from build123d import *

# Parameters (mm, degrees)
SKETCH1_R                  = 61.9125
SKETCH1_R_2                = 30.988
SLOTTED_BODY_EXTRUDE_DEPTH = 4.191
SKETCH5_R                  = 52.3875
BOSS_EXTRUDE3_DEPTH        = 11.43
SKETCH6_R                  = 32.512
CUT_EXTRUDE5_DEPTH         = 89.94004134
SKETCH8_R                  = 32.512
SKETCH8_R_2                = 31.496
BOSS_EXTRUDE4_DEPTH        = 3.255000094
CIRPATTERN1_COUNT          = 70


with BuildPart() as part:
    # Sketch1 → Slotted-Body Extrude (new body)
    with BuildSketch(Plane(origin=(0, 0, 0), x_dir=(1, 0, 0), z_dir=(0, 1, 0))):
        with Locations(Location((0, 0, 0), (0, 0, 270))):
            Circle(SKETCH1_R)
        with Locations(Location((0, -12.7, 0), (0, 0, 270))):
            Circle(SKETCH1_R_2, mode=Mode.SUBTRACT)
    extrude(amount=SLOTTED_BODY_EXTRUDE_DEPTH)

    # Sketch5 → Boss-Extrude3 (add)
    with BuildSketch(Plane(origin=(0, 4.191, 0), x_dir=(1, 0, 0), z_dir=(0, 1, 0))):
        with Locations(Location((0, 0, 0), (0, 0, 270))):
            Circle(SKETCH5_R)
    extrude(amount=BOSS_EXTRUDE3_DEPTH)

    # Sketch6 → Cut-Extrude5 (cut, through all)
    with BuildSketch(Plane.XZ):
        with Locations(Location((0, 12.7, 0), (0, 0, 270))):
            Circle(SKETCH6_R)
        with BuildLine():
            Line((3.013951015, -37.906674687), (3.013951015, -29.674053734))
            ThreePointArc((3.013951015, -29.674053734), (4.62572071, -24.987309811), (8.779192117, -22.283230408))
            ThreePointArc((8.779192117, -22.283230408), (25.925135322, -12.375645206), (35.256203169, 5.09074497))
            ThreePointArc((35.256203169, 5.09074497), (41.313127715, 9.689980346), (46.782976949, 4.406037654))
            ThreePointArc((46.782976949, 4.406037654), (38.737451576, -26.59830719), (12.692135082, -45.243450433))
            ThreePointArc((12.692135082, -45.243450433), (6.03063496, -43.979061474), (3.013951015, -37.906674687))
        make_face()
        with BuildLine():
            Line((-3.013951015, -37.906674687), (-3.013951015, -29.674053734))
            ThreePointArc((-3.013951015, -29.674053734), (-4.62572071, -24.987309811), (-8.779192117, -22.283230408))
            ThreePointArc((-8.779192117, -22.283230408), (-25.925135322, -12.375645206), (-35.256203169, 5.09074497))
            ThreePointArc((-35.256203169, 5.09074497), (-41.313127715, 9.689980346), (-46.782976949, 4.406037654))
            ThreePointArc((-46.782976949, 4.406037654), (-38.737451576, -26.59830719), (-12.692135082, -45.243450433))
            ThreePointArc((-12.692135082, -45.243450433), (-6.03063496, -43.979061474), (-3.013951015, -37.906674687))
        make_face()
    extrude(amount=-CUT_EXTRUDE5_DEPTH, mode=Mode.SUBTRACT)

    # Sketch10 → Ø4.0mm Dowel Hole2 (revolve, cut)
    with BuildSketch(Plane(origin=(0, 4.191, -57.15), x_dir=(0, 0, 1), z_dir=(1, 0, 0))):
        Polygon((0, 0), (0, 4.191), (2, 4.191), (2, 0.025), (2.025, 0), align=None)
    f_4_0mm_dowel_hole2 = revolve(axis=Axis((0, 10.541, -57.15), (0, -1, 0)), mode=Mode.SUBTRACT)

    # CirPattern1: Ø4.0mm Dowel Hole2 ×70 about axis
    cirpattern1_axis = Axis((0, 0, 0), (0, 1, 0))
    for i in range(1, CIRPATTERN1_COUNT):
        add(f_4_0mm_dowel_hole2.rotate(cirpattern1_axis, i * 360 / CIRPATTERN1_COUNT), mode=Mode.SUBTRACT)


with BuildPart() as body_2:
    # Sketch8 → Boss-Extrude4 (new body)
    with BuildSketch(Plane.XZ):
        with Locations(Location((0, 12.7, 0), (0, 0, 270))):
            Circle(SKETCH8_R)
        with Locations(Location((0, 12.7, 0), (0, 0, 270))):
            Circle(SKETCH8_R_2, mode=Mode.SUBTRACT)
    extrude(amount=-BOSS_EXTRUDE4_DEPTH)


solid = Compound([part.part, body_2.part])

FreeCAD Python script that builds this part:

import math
import FreeCAD as App
import Part
import Sketcher
Q = App.Units.Quantity


def add_polygon(sketch, points):
    """Adds a closed chain of lines whose ends are joined by coincident constraints."""
    first, n = sketch.GeometryCount, len(points)
    for a, b in zip(points, points[1:] + points[:1]):
        sketch.addGeometry(Part.LineSegment(App.Vector(*a, 0), App.Vector(*b, 0)), False)
    for i in range(n):
        sketch.addConstraint(Sketcher.Constraint("Coincident", first + i, 2, first + (i + 1) % n, 1))

doc = App.newDocument("Part")
body = doc.addObject("PartDesign::Body", "Body")

sketch1 = body.newObject("Sketcher::SketchObject", "Sketch")
sketch1.AttachmentSupport = (doc.getObject("XZ_Plane"), [""])
sketch1.MapMode = "FlatFace"
sketch1.addGeometry([
    Part.Circle(App.Vector(0, 0, 0), App.Vector(0, 0, 1), 62),
    Part.Circle(App.Vector(0, 13, 0), App.Vector(0, 0, 1), 31),
], False)
sketch1.addConstraint([
    Sketcher.Constraint("Coincident", 0, 3, -1, 1),
    Sketcher.Constraint("PointOnObject", 1, 3, -2),
    Sketcher.Constraint("Diameter", 1, Q("2.44 in")),
    Sketcher.Constraint("Diameter", 0, Q("4.875 in")),
    Sketcher.Constraint("DistanceY", -1, 1, 1, 3, Q("0.5 in")),
])
pad1 = body.newObject("PartDesign::Pad", "Pad")
pad1.Profile = sketch1
pad1.Length = Q("0.165 in")
pad1.Reversed = True

sketch2 = body.newObject("Sketcher::SketchObject", "Sketch001")
sketch2.AttachmentSupport = (doc.getObject("XZ_Plane"), [""])
sketch2.MapMode = "FlatFace"
sketch2.AttachmentOffset = App.Placement(App.Vector(0, 0, -0.165 * 25.4), App.Rotation())
sketch2.addGeometry(Part.Circle(App.Vector(0, 0, 0), App.Vector(0, 0, 1), 52), False)
sketch2.addConstraint([
    Sketcher.Constraint("Coincident", 0, 3, -1, 1),
    Sketcher.Constraint("Diameter", 0, Q("4.125 in")),
])
pad2 = body.newObject("PartDesign::Pad", "Pad001")
pad2.Profile = sketch2
pad2.Length = Q("0.45 in")
pad2.Reversed = True

sketch3 = body.newObject("Sketcher::SketchObject", "Sketch002")
sketch3.AttachmentSupport = (doc.getObject("XZ_Plane"), [""])
sketch3.MapMode = "FlatFace"
sketch3.addGeometry([
    Part.Circle(App.Vector(0, 13, 0), App.Vector(0, 0, 1), 33),
    Part.LineSegment(App.Vector(3, -30, 0), App.Vector(3, -38, 0)),
    Part.ArcOfCircle(Part.Circle(App.Vector(11, -38, 0), App.Vector(0, 0, 1), 8), math.radians(-180), math.radians(-74)),
    Part.ArcOfCircle(Part.Circle(App.Vector(0, 0, 0), App.Vector(0, 0, 1), 47), math.radians(-74), math.radians(5)),
    Part.ArcOfCircle(Part.Circle(App.Vector(41, 4, 0), App.Vector(0, 0, 1), 6), math.radians(5), math.radians(168)),
    Part.ArcOfCircle(Part.Circle(App.Vector(0, 13, 0), App.Vector(0, 0, 1), 36), math.radians(-76), math.radians(-12)),
    Part.ArcOfCircle(Part.Circle(App.Vector(11, -30, 0), App.Vector(0, 0, 1), 8), math.radians(104), math.radians(180)),
    Part.LineSegment(App.Vector(-3, -38, 0), App.Vector(-3, -30, 0)),
    Part.ArcOfCircle(Part.Circle(App.Vector(-11, -30, 0), App.Vector(0, 0, 1), 8), math.radians(0), math.radians(76)),
    Part.ArcOfCircle(Part.Circle(App.Vector(0, 13, 0), App.Vector(0, 0, 1), 36), math.radians(-168), math.radians(-104)),
    Part.ArcOfCircle(Part.Circle(App.Vector(-41, 4, 0), App.Vector(0, 0, 1), 6), math.radians(12), math.radians(175)),
    Part.ArcOfCircle(Part.Circle(App.Vector(0, 0, 0), App.Vector(0, 0, 1), 47), math.radians(175), math.radians(254)),
    Part.ArcOfCircle(Part.Circle(App.Vector(-11, -38, 0), App.Vector(0, 0, 1), 8), math.radians(-106), math.radians(0)),
], False)
sketch3.addConstraint([
    Sketcher.Constraint("Tangent", 1, 2, 2, 1),
    Sketcher.Constraint("Tangent", 2, 2, 3, 1),
    Sketcher.Constraint("Tangent", 3, 2, 4, 1),
    Sketcher.Constraint("Tangent", 4, 2, 5, 2),
    Sketcher.Constraint("Tangent", 5, 1, 6, 1),
    Sketcher.Constraint("Tangent", 6, 2, 1, 1),
    Sketcher.Constraint("Tangent", 7, 2, 8, 1),
    Sketcher.Constraint("Tangent", 8, 2, 9, 2),
    Sketcher.Constraint("Tangent", 9, 1, 10, 1),
    Sketcher.Constraint("Tangent", 10, 2, 11, 1),
    Sketcher.Constraint("Tangent", 11, 2, 12, 1),
    Sketcher.Constraint("Tangent", 12, 2, 7, 1),
    Sketcher.Constraint("Vertical", 1),
    Sketcher.Constraint("Vertical", 7),
    Sketcher.Constraint("Coincident", 3, 3, -1, 1),
    Sketcher.Constraint("Coincident", 11, 3, -1, 1),
    Sketcher.Constraint("Coincident", 5, 3, 0, 3),
    Sketcher.Constraint("Coincident", 9, 3, 0, 3),
    Sketcher.Constraint("Equal", 2, 6),
    Sketcher.Constraint("Equal", 6, 8),
    Sketcher.Constraint("Equal", 5, 9),
    Sketcher.Constraint("Equal", 4, 10),
    Sketcher.Constraint("Equal", 3, 11),
    Sketcher.Constraint("Equal", 8, 12),
    Sketcher.Constraint("Symmetric", 6, 3, 8, 3, -2),
    Sketcher.Constraint("Radius", 2, Q("0.3 in")),
    Sketcher.Constraint("Diameter", 0, Q("2.56 in")),
    Sketcher.Constraint("Radius", 3, Q("1.85 in")),
    Sketcher.Constraint("Radius", 4, Q("0.23 in")),
    Sketcher.Constraint("Radius", 5, Q("1.42 in")),
    Sketcher.Constraint("DistanceY", -1, 1, 0, 3, Q("0.5 in")),
    Sketcher.Constraint("DistanceY", 1, 2, 1, 1, 8.232621),
])
pocket1 = body.newObject("PartDesign::Pocket", "Pocket")
pocket1.Profile = sketch3
pocket1.Type = "ThroughAll"

sketch4 = body.newObject("Sketcher::SketchObject", "Sketch003")
sketch4.AttachmentSupport = (doc.getObject("YZ_Plane"), [""])
sketch4.MapMode = "FlatFace"
add_polygon(sketch4, [(0, -57.15), (4.191, -57.15), (4.191, -55.125), (4.166, -55.15), (0, -55.15)])
sketch4.addGeometry(Part.LineSegment(App.Vector(4.191, -57.15, 0), App.Vector(0, -57.15, 0)), True)
sketch4.addConstraint([
    Sketcher.Constraint("Horizontal", 0),
    Sketcher.Constraint("Vertical", 1),
    Sketcher.Constraint("Horizontal", 3),
    Sketcher.Constraint("Vertical", 4),
    Sketcher.Constraint("Horizontal", 5),
    Sketcher.Constraint("Coincident", 5, 1, 0, 2),
    Sketcher.Constraint("PointOnObject", 3, 2, -2),
    Sketcher.Constraint("PointOnObject", 5, 2, -2),
    Sketcher.Constraint("Angle", 2, Q("-135 deg")),
    Sketcher.Constraint("DistanceX", 0, 1, 0, 2, Q("0.165 in")),
    Sketcher.Constraint("DistanceY", 0, 2, -1, 1, Q("2.25 in")),
    Sketcher.Constraint("DistanceX", 3, 2, 3, 1, 4.166),
    Sketcher.Constraint("DistanceY", 1, 1, 1, 2, 2.025),
])
groove = body.newObject("PartDesign::Groove", "Groove")
groove.Profile = sketch4
groove.ReferenceAxis = (sketch4, ["Axis0"])
groove.Angle = 360
doc.recompute()

polarpattern = body.newObject("PartDesign::PolarPattern", "PolarPattern")
polarpattern.Originals = [groove]
polarpattern.Axis = (doc.getObject("Y_Axis"), [""])
polarpattern.Angle = 360
polarpattern.Occurrences = 70
body.Tip = polarpattern
body2 = doc.addObject("PartDesign::Body", "Body001")

sketch5 = body2.newObject("Sketcher::SketchObject", "Sketch004")
sketch5.AttachmentSupport = (doc.getObject("XZ_Plane001"), [""])
sketch5.MapMode = "FlatFace"
sketch5.addGeometry([
    Part.Circle(App.Vector(0, 13, 0), App.Vector(0, 0, 1), 33),
    Part.Circle(App.Vector(0, 13, 0), App.Vector(0, 0, 1), 31),
], False)
sketch5.addConstraint([
    Sketcher.Constraint("Coincident", 1, 3, 0, 3),
    Sketcher.Constraint("PointOnObject", 0, 3, -2),
    Sketcher.Constraint("Diameter", 0, Q("2.56 in")),
    Sketcher.Constraint("Diameter", 1, Q("2.48 in")),
    Sketcher.Constraint("DistanceY", -1, 1, 0, 3, Q("0.5 in")),
])
pad3 = body2.newObject("PartDesign::Pad", "Pad002")
pad3.Profile = sketch5
pad3.Length = 3.255
pad3.Reversed = True

doc.recompute()
